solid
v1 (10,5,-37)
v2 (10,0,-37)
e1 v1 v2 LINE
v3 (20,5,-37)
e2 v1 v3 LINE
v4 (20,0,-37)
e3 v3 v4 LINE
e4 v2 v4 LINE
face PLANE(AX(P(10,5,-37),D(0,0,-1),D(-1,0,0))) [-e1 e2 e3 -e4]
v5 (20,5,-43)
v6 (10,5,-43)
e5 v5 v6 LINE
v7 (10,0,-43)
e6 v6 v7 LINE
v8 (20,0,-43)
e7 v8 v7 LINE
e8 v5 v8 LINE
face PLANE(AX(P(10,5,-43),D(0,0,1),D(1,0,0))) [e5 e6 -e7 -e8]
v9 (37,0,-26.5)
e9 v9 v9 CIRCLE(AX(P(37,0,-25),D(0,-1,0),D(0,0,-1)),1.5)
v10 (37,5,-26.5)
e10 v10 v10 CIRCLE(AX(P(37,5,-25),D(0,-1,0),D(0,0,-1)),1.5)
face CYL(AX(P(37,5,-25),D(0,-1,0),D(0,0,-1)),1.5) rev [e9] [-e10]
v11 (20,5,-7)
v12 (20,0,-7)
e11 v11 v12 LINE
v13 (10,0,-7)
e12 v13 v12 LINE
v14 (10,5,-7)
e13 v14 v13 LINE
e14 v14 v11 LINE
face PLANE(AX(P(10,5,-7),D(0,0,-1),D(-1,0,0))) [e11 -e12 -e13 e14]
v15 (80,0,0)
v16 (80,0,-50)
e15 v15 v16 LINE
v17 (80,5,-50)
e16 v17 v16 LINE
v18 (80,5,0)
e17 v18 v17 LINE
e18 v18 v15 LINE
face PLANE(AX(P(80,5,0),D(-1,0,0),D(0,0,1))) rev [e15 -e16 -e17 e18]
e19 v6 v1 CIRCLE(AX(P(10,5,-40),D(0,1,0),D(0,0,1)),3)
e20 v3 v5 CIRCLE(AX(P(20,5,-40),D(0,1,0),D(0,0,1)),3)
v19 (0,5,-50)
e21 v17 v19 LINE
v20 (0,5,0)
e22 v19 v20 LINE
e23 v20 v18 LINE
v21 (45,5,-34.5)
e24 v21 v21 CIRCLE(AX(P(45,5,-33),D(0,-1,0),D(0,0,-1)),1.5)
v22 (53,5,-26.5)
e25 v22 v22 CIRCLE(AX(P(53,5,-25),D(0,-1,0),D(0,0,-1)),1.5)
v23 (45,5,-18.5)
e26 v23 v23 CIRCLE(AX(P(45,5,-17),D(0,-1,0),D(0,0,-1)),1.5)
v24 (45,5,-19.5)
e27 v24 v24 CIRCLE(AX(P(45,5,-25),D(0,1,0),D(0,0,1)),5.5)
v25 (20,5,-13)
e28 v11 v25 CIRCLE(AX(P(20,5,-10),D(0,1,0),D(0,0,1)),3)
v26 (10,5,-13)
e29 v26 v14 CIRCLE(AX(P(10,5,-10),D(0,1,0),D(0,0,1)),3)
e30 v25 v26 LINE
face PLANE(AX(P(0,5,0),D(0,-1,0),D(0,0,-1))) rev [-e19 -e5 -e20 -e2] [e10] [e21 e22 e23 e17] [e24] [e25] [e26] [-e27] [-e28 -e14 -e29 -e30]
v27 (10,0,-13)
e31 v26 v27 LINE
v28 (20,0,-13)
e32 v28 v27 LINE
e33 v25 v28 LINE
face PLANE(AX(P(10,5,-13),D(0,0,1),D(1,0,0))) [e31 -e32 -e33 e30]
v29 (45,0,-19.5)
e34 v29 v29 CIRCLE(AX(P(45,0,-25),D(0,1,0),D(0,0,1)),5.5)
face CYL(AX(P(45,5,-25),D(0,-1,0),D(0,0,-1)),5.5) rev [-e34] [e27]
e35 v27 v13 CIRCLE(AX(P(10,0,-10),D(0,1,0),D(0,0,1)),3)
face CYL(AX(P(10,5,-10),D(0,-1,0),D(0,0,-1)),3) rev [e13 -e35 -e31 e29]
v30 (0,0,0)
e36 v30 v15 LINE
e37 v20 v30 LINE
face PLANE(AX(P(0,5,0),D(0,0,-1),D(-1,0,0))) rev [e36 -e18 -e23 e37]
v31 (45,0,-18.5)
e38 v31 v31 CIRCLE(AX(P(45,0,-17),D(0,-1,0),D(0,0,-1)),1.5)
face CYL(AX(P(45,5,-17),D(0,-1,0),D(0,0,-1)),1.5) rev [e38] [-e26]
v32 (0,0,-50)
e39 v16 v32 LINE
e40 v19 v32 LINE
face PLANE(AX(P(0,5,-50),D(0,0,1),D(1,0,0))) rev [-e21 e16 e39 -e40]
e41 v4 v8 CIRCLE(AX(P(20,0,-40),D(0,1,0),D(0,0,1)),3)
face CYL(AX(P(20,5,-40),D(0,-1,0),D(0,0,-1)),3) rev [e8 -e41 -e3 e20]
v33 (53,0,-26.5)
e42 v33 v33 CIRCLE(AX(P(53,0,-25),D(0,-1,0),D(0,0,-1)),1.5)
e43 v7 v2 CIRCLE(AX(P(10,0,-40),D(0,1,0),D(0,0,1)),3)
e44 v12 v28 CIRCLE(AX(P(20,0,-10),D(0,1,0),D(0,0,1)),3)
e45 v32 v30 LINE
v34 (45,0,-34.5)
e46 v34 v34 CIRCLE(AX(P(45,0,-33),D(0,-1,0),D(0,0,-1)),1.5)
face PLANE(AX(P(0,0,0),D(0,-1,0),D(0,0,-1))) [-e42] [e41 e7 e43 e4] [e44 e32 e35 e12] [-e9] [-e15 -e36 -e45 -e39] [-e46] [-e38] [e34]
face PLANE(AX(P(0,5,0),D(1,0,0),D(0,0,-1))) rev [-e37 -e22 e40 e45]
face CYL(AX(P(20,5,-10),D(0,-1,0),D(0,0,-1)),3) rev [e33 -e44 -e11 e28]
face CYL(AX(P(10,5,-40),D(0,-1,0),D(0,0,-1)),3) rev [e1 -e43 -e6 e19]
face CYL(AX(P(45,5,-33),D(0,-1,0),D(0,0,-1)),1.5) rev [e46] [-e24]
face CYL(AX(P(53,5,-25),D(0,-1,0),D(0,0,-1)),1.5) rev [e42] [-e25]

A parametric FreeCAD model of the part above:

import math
import FreeCAD as App
import Part
import Sketcher

V = App.Vector

doc = App.newDocument("Part")
body = doc.addObject("PartDesign::Body", "Body")

sketch1 = body.newObject("Sketcher::SketchObject", "Sketch")
sketch1.AttachmentSupport = (doc.getObject("XZ_Plane"), [""])
sketch1.MapMode = "FlatFace"
sketch1.addGeometry([
    Part.LineSegment(V(0, -50, 0), V(0, 0, 0)),
    Part.LineSegment(V(0, 0, 0), V(80, 0, 0)),
    Part.LineSegment(V(80, 0, 0), V(80, -50, 0)),
    Part.LineSegment(V(80, -50, 0), V(0, -50, 0)),
    Part.ArcOfCircle(Part.Circle(V(10, -10, 0), V(0, 0, 1), 3), math.radians(90), math.radians(270)),
    Part.LineSegment(V(10, -13, 0), V(20, -13, 0)),
    Part.ArcOfCircle(Part.Circle(V(20, -10, 0), V(0, 0, 1), 3), math.radians(-90), math.radians(90)),
    Part.LineSegment(V(20, -7, 0), V(10, -7, 0)),
    Part.ArcOfCircle(Part.Circle(V(10, -40, 0), V(0, 0, 1), 3), math.radians(90), math.radians(270)),
    Part.LineSegment(V(10, -43, 0), V(20, -43, 0)),
    Part.ArcOfCircle(Part.Circle(V(20, -40, 0), V(0, 0, 1), 3), math.radians(-90), math.radians(90)),
    Part.LineSegment(V(20, -37, 0), V(10, -37, 0)),
    Part.Circle(V(45, -25, 0), V(0, 0, 1), 5.5),
], False)
sketch1.addConstraint([
    Sketcher.Constraint("Coincident", 0, 2, 1, 1),
    Sketcher.Constraint("Coincident", 1, 2, 2, 1),
    Sketcher.Constraint("Coincident", 2, 2, 3, 1),
    Sketcher.Constraint("Coincident", 3, 2, 0, 1),
    Sketcher.Constraint("Tangent", 4, 2, 5, 1),
    Sketcher.Constraint("Tangent", 5, 2, 6, 1),
    Sketcher.Constraint("Tangent", 6, 2, 7, 1),
    Sketcher.Constraint("Tangent", 7, 2, 4, 1),
    Sketcher.Constraint("Tangent", 8, 2, 9, 1),
    Sketcher.Constraint("Tangent", 9, 2, 10, 1),
    Sketcher.Constraint("Tangent", 10, 2, 11, 1),
    Sketcher.Constraint("Tangent", 11, 2, 8, 1),
    Sketcher.Constraint("Vertical", 0),
    Sketcher.Constraint("Horizontal", 1),
    Sketcher.Constraint("Vertical", 2),
    Sketcher.Constraint("Horizontal", 3),
    Sketcher.Constraint("Horizontal", 5),
    Sketcher.Constraint("Horizontal", 7),
    Sketcher.Constraint("Horizontal", 9),
    Sketcher.Constraint("Horizontal", 11),
    Sketcher.Constraint("Coincident", 0, 2, -1, 1),
    Sketcher.Constraint("Equal", 6, 8),
    Sketcher.Constraint("Vertical", 4, 3, 8, 3),
    Sketcher.Constraint("Vertical", 6, 3, 10, 3),
    Sketcher.Constraint("Diameter", 12, 11.0),
    Sketcher.Constraint("Radius", 4, 3.0),
    Sketcher.Constraint("DistanceX", 1, 1, 1, 2, 80.0),
    Sketcher.Constraint("DistanceX", 5, 1, 5, 2, 10.0),
    Sketcher.Constraint("DistanceY", 0, 1, 0, 2, 50.0),
    Sketcher.Constraint("DistanceX", -1, 1, 4, 3, 10.0),
    Sketcher.Constraint("DistanceY", 4, 3, -1, 1, 10.0),
    Sketcher.Constraint("DistanceY", 8, 3, -1, 1, 40.0),
    Sketcher.Constraint("DistanceX", -1, 1, 12, 3, 45.0),
    Sketcher.Constraint("DistanceY", 12, 3, -1, 1, 25.0),
])
pad1 = body.newObject("PartDesign::Pad", "Pad")
pad1.Profile = sketch1
pad1.Length = 5
pad1.Reversed = True

sketch2 = body.newObject("Sketcher::SketchObject", "Sketch001")
sketch2.AttachmentSupport = (doc.getObject("XZ_Plane"), [""])
sketch2.MapMode = "FlatFace"
sketch2.addGeometry([
    Part.Circle(V(45, -17, 0), V(0, 0, 1), 1.5),
    Part.Circle(V(53, -25, 0), V(0, 0, 1), 1.5),
    Part.Circle(V(45, -33, 0), V(0, 0, 1), 1.5),
    Part.Circle(V(37, -25, 0), V(0, 0, 1), 1.5),
], False)
sketch2.addConstraint([
    Sketcher.Constraint("Equal", 0, 1),
    Sketcher.Constraint("Equal", 1, 2),
    Sketcher.Constraint("Equal", 2, 3),
    Sketcher.Constraint("Horizontal", 1, 3, 3, 3),
    Sketcher.Constraint("Vertical", 0, 3, 2, 3),
    Sketcher.Constraint("Diameter", 0, 3.0),
    Sketcher.Constraint("DistanceX", -1, 1, 0, 3, 45.0),
    Sketcher.Constraint("DistanceY", 0, 3, -1, 1, 17.0),
    Sketcher.Constraint("DistanceX", -1, 1, 1, 3, 53.0),
    Sketcher.Constraint("DistanceY", 1, 3, -1, 1, 25.0),
    Sketcher.Constraint("DistanceY", 2, 3, -1, 1, 33.0),
    Sketcher.Constraint("DistanceX", -1, 1, 3, 3, 37.0),
])
pocket1 = body.newObject("PartDesign::Pocket", "Pocket")
pocket1.Profile = sketch2
pocket1.Length = 5

doc.recompute()
